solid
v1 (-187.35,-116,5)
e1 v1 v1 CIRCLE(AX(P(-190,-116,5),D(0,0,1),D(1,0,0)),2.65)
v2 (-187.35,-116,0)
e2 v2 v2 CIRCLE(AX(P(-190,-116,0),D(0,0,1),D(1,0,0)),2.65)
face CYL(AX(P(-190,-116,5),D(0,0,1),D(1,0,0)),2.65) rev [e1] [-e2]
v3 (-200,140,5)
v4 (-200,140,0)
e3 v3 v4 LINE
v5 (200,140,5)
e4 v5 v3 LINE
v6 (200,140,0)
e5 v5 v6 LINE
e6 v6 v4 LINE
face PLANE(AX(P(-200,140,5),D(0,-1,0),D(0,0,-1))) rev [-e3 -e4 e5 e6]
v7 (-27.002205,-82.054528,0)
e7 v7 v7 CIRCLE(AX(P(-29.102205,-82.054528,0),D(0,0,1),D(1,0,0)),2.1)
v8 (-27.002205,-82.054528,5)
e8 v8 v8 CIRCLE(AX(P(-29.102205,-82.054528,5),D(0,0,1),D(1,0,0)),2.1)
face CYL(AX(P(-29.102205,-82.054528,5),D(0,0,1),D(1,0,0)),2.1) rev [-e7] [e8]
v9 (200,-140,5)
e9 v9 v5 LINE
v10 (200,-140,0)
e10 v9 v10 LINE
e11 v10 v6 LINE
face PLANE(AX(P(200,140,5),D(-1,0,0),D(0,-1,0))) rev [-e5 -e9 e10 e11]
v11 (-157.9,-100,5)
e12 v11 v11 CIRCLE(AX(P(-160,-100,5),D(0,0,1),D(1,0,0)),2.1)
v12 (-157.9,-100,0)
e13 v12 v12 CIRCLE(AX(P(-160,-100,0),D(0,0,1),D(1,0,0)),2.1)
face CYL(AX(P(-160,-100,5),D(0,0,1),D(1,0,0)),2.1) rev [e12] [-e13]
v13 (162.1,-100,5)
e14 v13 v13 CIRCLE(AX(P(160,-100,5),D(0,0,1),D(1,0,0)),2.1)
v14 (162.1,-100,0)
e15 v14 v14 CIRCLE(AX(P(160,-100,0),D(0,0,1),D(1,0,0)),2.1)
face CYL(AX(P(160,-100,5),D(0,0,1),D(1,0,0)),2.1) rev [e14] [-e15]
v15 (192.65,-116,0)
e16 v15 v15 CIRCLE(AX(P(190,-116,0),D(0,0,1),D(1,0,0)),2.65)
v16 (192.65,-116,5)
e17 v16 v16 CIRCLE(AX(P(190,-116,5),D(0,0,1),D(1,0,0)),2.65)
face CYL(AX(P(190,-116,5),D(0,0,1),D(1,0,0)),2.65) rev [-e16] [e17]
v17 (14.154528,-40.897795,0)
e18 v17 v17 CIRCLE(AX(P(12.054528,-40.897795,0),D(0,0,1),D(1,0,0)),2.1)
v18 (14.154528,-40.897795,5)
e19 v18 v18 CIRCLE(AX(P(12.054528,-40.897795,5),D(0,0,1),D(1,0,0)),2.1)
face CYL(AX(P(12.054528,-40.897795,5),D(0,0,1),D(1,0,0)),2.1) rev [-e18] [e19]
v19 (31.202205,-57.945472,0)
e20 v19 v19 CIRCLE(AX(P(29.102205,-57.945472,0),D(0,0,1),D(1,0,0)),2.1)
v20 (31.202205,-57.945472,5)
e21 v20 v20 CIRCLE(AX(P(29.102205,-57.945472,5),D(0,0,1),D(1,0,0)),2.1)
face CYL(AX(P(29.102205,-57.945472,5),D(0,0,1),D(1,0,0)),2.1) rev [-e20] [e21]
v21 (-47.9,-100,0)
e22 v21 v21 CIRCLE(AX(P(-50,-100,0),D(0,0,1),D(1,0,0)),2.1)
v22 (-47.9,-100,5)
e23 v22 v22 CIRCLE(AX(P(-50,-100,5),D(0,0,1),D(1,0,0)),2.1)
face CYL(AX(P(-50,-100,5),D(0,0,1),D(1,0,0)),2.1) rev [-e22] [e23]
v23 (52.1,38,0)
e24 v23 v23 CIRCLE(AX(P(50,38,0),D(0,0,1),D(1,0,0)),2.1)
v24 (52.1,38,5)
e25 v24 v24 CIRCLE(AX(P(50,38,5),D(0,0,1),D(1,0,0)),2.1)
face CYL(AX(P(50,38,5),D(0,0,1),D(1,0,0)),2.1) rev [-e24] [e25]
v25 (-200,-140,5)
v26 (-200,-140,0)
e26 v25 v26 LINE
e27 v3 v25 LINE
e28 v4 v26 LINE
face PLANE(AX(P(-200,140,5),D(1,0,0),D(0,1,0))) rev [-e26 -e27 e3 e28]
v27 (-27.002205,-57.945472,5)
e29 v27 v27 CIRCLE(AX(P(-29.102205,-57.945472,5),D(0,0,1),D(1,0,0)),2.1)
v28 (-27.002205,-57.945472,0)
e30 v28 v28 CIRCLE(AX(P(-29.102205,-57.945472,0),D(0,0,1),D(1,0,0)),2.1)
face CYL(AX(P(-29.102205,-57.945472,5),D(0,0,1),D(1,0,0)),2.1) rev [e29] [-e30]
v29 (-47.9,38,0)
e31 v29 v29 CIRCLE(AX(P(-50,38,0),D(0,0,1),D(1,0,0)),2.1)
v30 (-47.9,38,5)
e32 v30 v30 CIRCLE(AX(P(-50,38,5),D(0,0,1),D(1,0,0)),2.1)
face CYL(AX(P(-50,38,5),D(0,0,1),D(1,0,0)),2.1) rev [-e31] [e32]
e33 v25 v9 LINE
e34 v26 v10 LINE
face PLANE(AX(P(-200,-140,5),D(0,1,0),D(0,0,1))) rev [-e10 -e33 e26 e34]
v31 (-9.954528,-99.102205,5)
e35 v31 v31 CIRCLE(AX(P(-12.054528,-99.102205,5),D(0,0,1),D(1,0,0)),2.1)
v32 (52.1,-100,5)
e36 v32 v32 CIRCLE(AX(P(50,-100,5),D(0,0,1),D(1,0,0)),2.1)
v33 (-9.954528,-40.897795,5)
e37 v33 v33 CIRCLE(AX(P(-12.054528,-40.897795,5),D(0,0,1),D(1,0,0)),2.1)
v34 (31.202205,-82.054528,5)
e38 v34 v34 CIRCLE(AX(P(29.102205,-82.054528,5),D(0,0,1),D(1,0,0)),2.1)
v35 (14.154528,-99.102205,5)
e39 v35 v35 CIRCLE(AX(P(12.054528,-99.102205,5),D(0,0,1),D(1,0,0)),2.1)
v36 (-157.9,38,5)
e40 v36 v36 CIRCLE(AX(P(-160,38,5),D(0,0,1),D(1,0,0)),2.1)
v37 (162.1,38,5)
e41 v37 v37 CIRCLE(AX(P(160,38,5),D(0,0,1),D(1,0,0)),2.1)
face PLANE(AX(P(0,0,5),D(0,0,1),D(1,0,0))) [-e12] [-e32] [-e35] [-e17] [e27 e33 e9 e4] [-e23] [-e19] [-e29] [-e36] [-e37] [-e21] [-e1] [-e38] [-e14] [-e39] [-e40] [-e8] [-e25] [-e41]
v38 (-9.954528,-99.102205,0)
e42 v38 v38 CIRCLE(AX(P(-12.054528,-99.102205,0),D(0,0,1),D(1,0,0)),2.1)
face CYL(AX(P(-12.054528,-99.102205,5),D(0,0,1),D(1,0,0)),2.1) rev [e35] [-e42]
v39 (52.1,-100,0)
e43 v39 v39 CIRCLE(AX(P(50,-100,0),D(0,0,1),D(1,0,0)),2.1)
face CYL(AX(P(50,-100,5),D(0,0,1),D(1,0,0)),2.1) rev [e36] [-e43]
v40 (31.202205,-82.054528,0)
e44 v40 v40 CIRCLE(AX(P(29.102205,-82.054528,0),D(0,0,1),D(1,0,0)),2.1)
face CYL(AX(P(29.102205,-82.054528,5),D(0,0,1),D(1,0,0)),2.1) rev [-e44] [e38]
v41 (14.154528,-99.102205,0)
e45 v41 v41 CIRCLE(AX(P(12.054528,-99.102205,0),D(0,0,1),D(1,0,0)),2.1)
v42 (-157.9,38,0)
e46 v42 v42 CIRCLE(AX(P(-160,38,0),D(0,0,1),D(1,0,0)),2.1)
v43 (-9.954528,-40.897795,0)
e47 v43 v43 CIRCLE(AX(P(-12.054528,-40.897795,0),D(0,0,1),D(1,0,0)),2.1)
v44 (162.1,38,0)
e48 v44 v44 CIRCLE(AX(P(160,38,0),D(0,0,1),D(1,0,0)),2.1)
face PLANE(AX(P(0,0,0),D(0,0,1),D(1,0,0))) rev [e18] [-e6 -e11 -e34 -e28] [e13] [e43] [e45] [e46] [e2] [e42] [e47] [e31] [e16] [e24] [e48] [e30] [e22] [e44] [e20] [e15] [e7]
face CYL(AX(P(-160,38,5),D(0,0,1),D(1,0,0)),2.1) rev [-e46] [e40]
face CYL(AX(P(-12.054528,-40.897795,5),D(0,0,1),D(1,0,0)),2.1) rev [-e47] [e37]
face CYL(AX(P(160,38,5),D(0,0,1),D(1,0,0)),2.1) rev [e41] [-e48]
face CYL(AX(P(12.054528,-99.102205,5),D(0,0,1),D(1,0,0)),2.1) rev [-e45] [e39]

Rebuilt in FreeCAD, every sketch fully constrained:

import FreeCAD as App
import Part
import Sketcher

V = App.Vector


def add_polygon(sketch, points):
    """Adds a closed chain of lines whose ends are joined by coincident constraints."""
    first, n = sketch.GeometryCount, len(points)
    for a, b in zip(points, points[1:] + points[:1]):
        sketch.addGeometry(Part.LineSegment(App.Vector(*a, 0), App.Vector(*b, 0)), False)
    for i in range(n):
        sketch.addConstraint(Sketcher.Constraint("Coincident", first + i, 2, first + (i + 1) % n, 1))

doc = App.newDocument("Part")
body = doc.addObject("PartDesign::Body", "Body")

# Sketch on XY plane
sketch1 = doc.addObject("Sketcher::SketchObject", "Sketch")
body.addObject(sketch1)
sketch1.AttachmentSupport = (doc.XY_Plane, [""])
sketch1.MapMode = "FlatFace"
add_polygon(sketch1, [(-200, 140), (-200, -140), (200, -140), (200, 140)])  # lines 0-3
sketch1.addConstraint(Sketcher.Constraint("Vertical", 0))
sketch1.addConstraint(Sketcher.Constraint("Horizontal", 1))
sketch1.addConstraint(Sketcher.Constraint("Vertical", 2))
sketch1.addConstraint(Sketcher.Constraint("Horizontal", 3))
sketch1.addConstraint(Sketcher.Constraint("Symmetric", 0, 2, 2, 2, -1, 1))
sketch1.addConstraint(Sketcher.Constraint("DistanceX", 1, 1, 1, 2, 400.0))
sketch1.addConstraint(Sketcher.Constraint("DistanceY", 0, 2, 0, 1, 280.0))
pad1 = doc.addObject("PartDesign::Pad", "Pad")
body.addObject(pad1)
pad1.Profile = sketch1
pad1.Length = 5

# Sketch on XY plane
sketch2 = doc.addObject("Sketcher::SketchObject", "Sketch001")
body.addObject(sketch2)
sketch2.AttachmentSupport = (doc.XY_Plane, [""])
sketch2.MapMode = "FlatFace"
sketch2.AttachmentOffset = App.Placement(V(0, 0, 5), App.Rotation())
sketch2.addGeometry(Part.Circle(V(12.1, -40.9, 0), V(0, 0, 1), 2.1), False)
sketch2.addGeometry(Part.Circle(V(29.1, -57.9, 0), V(0, 0, 1), 2.1), False)
sketch2.addGeometry(Part.Circle(V(29.1, -82.1, 0), V(0, 0, 1), 2.1), False)
sketch2.addGeometry(Part.Circle(V(12.1, -99.1, 0), V(0, 0, 1), 2.1), False)
sketch2.addGeometry(Part.Circle(V(-12.1, -99.1, 0), V(0, 0, 1), 2.1), False)
sketch2.addGeometry(Part.Circle(V(-29.1, -82.1, 0), V(0, 0, 1), 2.1), False)
sketch2.addGeometry(Part.Circle(V(-29.1, -57.9, 0), V(0, 0, 1), 2.1), False)
sketch2.addGeometry(Part.Circle(V(-12.1, -40.9, 0), V(0, 0, 1), 2.1), False)
sketch2.addConstraint(Sketcher.Constraint("Equal", 0, 1))
sketch2.addConstraint(Sketcher.Constraint("Equal", 1, 2))
sketch2.addConstraint(Sketcher.Constraint("Equal", 2, 3))
sketch2.addConstraint(Sketcher.Constraint("Equal", 3, 4))
sketch2.addConstraint(Sketcher.Constraint("Equal", 4, 5))
sketch2.addConstraint(Sketcher.Constraint("Equal", 5, 6))
sketch2.addConstraint(Sketcher.Constraint("Equal", 6, 7))
sketch2.addConstraint(Sketcher.Constraint("Symmetric", 3, 3, 4, 3, -2))
sketch2.addConstraint(Sketcher.Constraint("Symmetric", 2, 3, 5, 3, -2))
sketch2.addConstraint(Sketcher.Constraint("Symmetric", 1, 3, 6, 3, -2))
sketch2.addConstraint(Sketcher.Constraint("Symmetric", 0, 3, 7, 3, -2))
sketch2.addConstraint(Sketcher.Constraint("Vertical", 1, 3, 2, 3))
sketch2.addConstraint(Sketcher.Constraint("Vertical", 0, 3, 3, 3))
sketch2.addConstraint(Sketcher.Constraint("Diameter", 0, 4.2))
sketch2.addConstraint(Sketcher.Constraint("DistanceX", -1, 1, 0, 3, 12.054528))
sketch2.addConstraint(Sketcher.Constraint("DistanceY", 1, 3, -1, 1, 57.945472))
sketch2.addConstraint(Sketcher.Constraint("DistanceY", 2, 3, -1, 1, 82.054528))
sketch2.addConstraint(Sketcher.Constraint("DistanceY", 3, 3, 0, 3, 58.204411))
sketch2.addConstraint(Sketcher.Constraint("DistanceX", 5, 3, 2, 3, 58.204411))
sketch2.addConstraint(Sketcher.Constraint("DistanceY", 0, 3, -1, 1, 40.897795))
doc.recompute()
hole = doc.addObject("PartDesign::Hole", "Hole")
body.addObject(hole)
hole.Profile = sketch2
hole.ThreadType = "None"
hole.Diameter = 4.2
hole.DepthType = "ThroughAll"

# Sketch on XY plane
sketch3 = doc.addObject("Sketcher::SketchObject", "Sketch002")
body.addObject(sketch3)
sketch3.AttachmentSupport = (doc.XY_Plane, [""])
sketch3.MapMode = "FlatFace"
sketch3.AttachmentOffset = App.Placement(V(0, 0, 5), App.Rotation())
sketch3.addGeometry(Part.Circle(V(-190, -116, 0), V(0, 0, 1), 2.6), False)
sketch3.addGeometry(Part.Circle(V(190, -116, 0), V(0, 0, 1), 2.6), False)
sketch3.addConstraint(Sketcher.Constraint("Equal", 0, 1))
sketch3.addConstraint(Sketcher.Constraint("Symmetric", 0, 3, 1, 3, -2))
sketch3.addConstraint(Sketcher.Constraint("Diameter", 0, 5.3))
sketch3.addConstraint(Sketcher.Constraint("DistanceX", 0, 3, -1, 1, 190.0))
sketch3.addConstraint(Sketcher.Constraint("DistanceY", 0, 3, -1, 1, 116.0))
doc.recompute()
hole2 = doc.addObject("PartDesign::Hole", "Hole001")
body.addObject(hole2)
hole2.Profile = sketch3
hole2.ThreadType = "None"
hole2.Diameter = 5.3
hole2.DepthType = "ThroughAll"

# Sketch on XY plane
sketch4 = doc.addObject("Sketcher::SketchObject", "Sketch003")
body.addObject(sketch4)
sketch4.AttachmentSupport = (doc.XY_Plane, [""])
sketch4.MapMode = "FlatFace"
sketch4.AttachmentOffset = App.Placement(V(0, 0, 5), App.Rotation())
sketch4.addGeometry(Part.Circle(V(-160, 38, 0), V(0, 0, 1), 2.1), False)
sketch4.addGeometry(Part.Circle(V(-50, 38, 0), V(0, 0, 1), 2.1), False)
sketch4.addGeometry(Part.Circle(V(50, 38, 0), V(0, 0, 1), 2.1), False)
sketch4.addGeometry(Part.Circle(V(160, 38, 0), V(0, 0, 1), 2.1), False)
sketch4.addGeometry(Part.Circle(V(160, -100, 0), V(0, 0, 1), 2.1), False)
sketch4.addGeometry(Part.Circle(V(50, -100, 0), V(0, 0, 1), 2.1), False)
sketch4.addGeometry(Part.Circle(V(-50, -100, 0), V(0, 0, 1), 2.1), False)
sketch4.addGeometry(Part.Circle(V(-160, -100, 0), V(0, 0, 1), 2.1), False)
sketch4.addConstraint(Sketcher.Constraint("Equal", 0, 1))
sketch4.addConstraint(Sketcher.Constraint("Equal", 1, 2))
sketch4.addConstraint(Sketcher.Constraint("Equal", 2, 3))
sketch4.addConstraint(Sketcher.Constraint("Equal", 3, 4))
sketch4.addConstraint(Sketcher.Constraint("Equal", 4, 5))
sketch4.addConstraint(Sketcher.Constraint("Equal", 5, 6))
sketch4.addConstraint(Sketcher.Constraint("Equal", 6, 7))
sketch4.addConstraint(Sketcher.Constraint("Symmetric", 1, 3, 2, 3, -2))
sketch4.addConstraint(Sketcher.Constraint("Symmetric", 0, 3, 3, 3, -2))
sketch4.addConstraint(Sketcher.Constraint("Symmetric", 5, 3, 6, 3, -2))
sketch4.addConstraint(Sketcher.Constraint("Symmetric", 4, 3, 7, 3, -2))
sketch4.addConstraint(Sketcher.Constraint("Horizontal", 0, 3, 1, 3))
sketch4.addConstraint(Sketcher.Constraint("Horizontal", 4, 3, 5, 3))
sketch4.addConstraint(Sketcher.Constraint("Vertical", 3, 3, 4, 3))
sketch4.addConstraint(Sketcher.Constraint("Vertical", 2, 3, 5, 3))
sketch4.addConstraint(Sketcher.Constraint("Diameter", 0, 4.2))
sketch4.addConstraint(Sketcher.Constraint("DistanceX", 0, 3, -1, 1, 160.0))
sketch4.addConstraint(Sketcher.Constraint("DistanceY", -1, 1, 0, 3, 38.0))
sketch4.addConstraint(Sketcher.Constraint("DistanceX", 1, 3, -1, 1, 50.0))
sketch4.addConstraint(Sketcher.Constraint("DistanceY", 4, 3, -1, 1, 100.0))
doc.recompute()
hole3 = doc.addObject("PartDesign::Hole", "Hole002")
body.addObject(hole3)
hole3.Profile = sketch4
hole3.ThreadType = "None"
hole3.Diameter = 4.2
hole3.DepthType = "ThroughAll"

doc.recompute()
